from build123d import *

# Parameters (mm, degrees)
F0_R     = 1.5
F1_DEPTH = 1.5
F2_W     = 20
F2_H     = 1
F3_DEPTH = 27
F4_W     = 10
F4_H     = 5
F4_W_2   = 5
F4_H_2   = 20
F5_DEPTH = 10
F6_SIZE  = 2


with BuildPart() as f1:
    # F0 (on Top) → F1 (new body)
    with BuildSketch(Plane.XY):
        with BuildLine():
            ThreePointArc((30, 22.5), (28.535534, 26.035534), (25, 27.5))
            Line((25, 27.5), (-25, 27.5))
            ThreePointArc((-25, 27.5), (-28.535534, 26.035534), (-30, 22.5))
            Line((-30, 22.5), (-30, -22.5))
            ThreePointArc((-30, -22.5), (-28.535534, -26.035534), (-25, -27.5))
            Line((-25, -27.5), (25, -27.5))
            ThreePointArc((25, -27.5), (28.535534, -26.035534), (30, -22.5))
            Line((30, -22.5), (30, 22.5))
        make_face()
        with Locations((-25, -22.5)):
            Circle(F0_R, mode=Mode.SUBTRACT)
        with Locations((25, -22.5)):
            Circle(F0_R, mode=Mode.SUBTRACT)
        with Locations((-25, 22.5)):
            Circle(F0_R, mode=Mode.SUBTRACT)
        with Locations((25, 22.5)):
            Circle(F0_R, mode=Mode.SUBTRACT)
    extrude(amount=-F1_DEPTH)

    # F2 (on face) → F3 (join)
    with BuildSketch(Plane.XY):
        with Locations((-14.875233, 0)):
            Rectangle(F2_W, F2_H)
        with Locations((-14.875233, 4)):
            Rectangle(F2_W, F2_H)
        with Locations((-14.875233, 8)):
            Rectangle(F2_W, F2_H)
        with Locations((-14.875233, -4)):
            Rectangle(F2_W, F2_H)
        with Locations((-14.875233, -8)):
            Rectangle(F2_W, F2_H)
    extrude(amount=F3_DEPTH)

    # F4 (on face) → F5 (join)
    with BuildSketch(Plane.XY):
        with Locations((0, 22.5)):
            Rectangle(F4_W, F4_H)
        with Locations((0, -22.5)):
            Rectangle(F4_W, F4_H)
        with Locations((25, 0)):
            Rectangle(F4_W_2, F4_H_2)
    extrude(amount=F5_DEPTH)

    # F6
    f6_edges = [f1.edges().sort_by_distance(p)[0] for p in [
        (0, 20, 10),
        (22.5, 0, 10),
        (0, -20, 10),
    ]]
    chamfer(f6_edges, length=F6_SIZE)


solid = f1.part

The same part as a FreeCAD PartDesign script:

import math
import FreeCAD as App
import Part
import Sketcher


def edges_at(feature, points):
    """Names of the edges that pass closest to the given points."""
    edges = feature.Shape.Edges
    near = lambda p: min(range(len(edges)), key=lambda i: edges[i].distToShape(Part.Vertex(*p))[0])
    return sorted({f"Edge{near(p) + 1}" for p in points})


def add_polygon(sketch, points):
    """Adds a closed chain of lines whose ends are joined by coincident constraints."""
    first, n = sketch.GeometryCount, len(points)
    for a, b in zip(points, points[1:] + points[:1]):
        sketch.addGeometry(Part.LineSegment(App.Vector(*a, 0), App.Vector(*b, 0)), False)
    for i in range(n):
        sketch.addConstraint(Sketcher.Constraint("Coincident", first + i, 2, first + (i + 1) % n, 1))

doc = App.newDocument("Part")
body = doc.addObject("PartDesign::Body", "Body")

sketch1 = doc.addObject("Sketcher::SketchObject", "Sketch")
body.addObject(sketch1)
sketch1.AttachmentSupport = (doc.XY_Plane, [""])
sketch1.MapMode = "FlatFace"
sketch1.addGeometry(Part.ArcOfCircle(Part.Circle(App.Vector(25, 22.5, 0), App.Vector(0, 0, 1), 5), math.radians(0), math.radians(90)), False)
sketch1.addGeometry(Part.LineSegment(App.Vector(25, 27.5, 0), App.Vector(-25, 27.5, 0)), False)
sketch1.addGeometry(Part.ArcOfCircle(Part.Circle(App.Vector(-25, 22.5, 0), App.Vector(0, 0, 1), 5), math.radians(90), math.radians(180)), False)
sketch1.addGeometry(Part.LineSegment(App.Vector(-30, 22.5, 0), App.Vector(-30, -22.5, 0)), False)
sketch1.addGeometry(Part.ArcOfCircle(Part.Circle(App.Vector(-25, -22.5, 0), App.Vector(0, 0, 1), 5), math.radians(180), math.radians(270)), False)
sketch1.addGeometry(Part.LineSegment(App.Vector(-25, -27.5, 0), App.Vector(25, -27.5, 0)), False)
sketch1.addGeometry(Part.ArcOfCircle(Part.Circle(App.Vector(25, -22.5, 0), App.Vector(0, 0, 1), 5), math.radians(-90), math.radians(0)), False)
sketch1.addGeometry(Part.LineSegment(App.Vector(30, -22.5, 0), App.Vector(30, 22.5, 0)), False)
sketch1.addGeometry(Part.Circle(App.Vector(-25, -22.5, 0), App.Vector(0, 0, 1), 1.5), False)
sketch1.addGeometry(Part.Circle(App.Vector(25, -22.5, 0), App.Vector(0, 0, 1), 1.5), False)
sketch1.addGeometry(Part.Circle(App.Vector(-25, 22.5, 0), App.Vector(0, 0, 1), 1.5), False)
sketch1.addGeometry(Part.Circle(App.Vector(25, 22.5, 0), App.Vector(0, 0, 1), 1.5), False)
sketch1.addConstraint(Sketcher.Constraint("Tangent", 0, 2, 1, 1))
sketch1.addConstraint(Sketcher.Constraint("Tangent", 1, 2, 2, 1))
sketch1.addConstraint(Sketcher.Constraint("Tangent", 2, 2, 3, 1))
sketch1.addConstraint(Sketcher.Constraint("Tangent", 3, 2, 4, 1))
sketch1.addConstraint(Sketcher.Constraint("Tangent", 4, 2, 5, 1))
sketch1.addConstraint(Sketcher.Constraint("Tangent", 5, 2, 6, 1))
sketch1.addConstraint(Sketcher.Constraint("Tangent", 6, 2, 7, 1))
sketch1.addConstraint(Sketcher.Constraint("Tangent", 7, 2, 0, 1))
sketch1.addConstraint(Sketcher.Constraint("Horizontal", 1))
sketch1.addConstraint(Sketcher.Constraint("Vertical", 3))
sketch1.addConstraint(Sketcher.Constraint("Horizontal", 5))
sketch1.addConstraint(Sketcher.Constraint("Vertical", 7))
sketch1.addConstraint(Sketcher.Constraint("Coincident", 8, 3, 4, 3))
sketch1.addConstraint(Sketcher.Constraint("Coincident", 9, 3, 6, 3))
sketch1.addConstraint(Sketcher.Constraint("Coincident", 10, 3, 2, 3))
sketch1.addConstraint(Sketcher.Constraint("Coincident", 11, 3, 0, 3))
sketch1.addConstraint(Sketcher.Constraint("Equal", 0, 2))
sketch1.addConstraint(Sketcher.Constraint("Equal", 2, 4))
sketch1.addConstraint(Sketcher.Constraint("Equal", 4, 6))
sketch1.addConstraint(Sketcher.Constraint("Equal", 8, 9))
sketch1.addConstraint(Sketcher.Constraint("Equal", 9, 10))
sketch1.addConstraint(Sketcher.Constraint("Equal", 10, 11))
sketch1.addConstraint(Sketcher.Constraint("Symmetric", 0, 3, 4, 3, -1, 1))
sketch1.addConstraint(Sketcher.Constraint("Diameter", 8, 3.0))
sketch1.addConstraint(Sketcher.Constraint("Radius", 0, 5.0))
sketch1.addConstraint(Sketcher.Constraint("DistanceX", 1, 2, 1, 1, 50.0))
sketch1.addConstraint(Sketcher.Constraint("DistanceY", 3, 2, 3, 1, 45.0))
pad1 = doc.addObject("PartDesign::Pad", "Pad")
body.addObject(pad1)
pad1.Profile = sketch1
pad1.Length = 1.5
pad1.Reversed = True

sketch2 = doc.addObject("Sketcher::SketchObject", "Sketch001")
body.addObject(sketch2)
sketch2.AttachmentSupport = (doc.XY_Plane, [""])
sketch2.MapMode = "FlatFace"
add_polygon(sketch2, [(-24.9, 0.5), (-24.9, -0.5), (-4.9, -0.5), (-4.9, 0.5)])
add_polygon(sketch2, [(-24.9, 4.5), (-24.9, 3.5), (-4.9, 3.5), (-4.9, 4.5)])
add_polygon(sketch2, [(-24.9, 8.5), (-24.9, 7.5), (-4.9, 7.5), (-4.9, 8.5)])
add_polygon(sketch2, [(-24.9, -3.5), (-24.9, -4.5), (-4.9, -4.5), (-4.9, -3.5)])
add_polygon(sketch2, [(-24.9, -7.5), (-24.9, -8.5), (-4.9, -8.5), (-4.9, -7.5)])
sketch2.addConstraint(Sketcher.Constraint("Vertical", 0))
sketch2.addConstraint(Sketcher.Constraint("Horizontal", 1))
sketch2.addConstraint(Sketcher.Constraint("Vertical", 2))
sketch2.addConstraint(Sketcher.Constraint("Horizontal", 3))
sketch2.addConstraint(Sketcher.Constraint("Vertical", 4))
sketch2.addConstraint(Sketcher.Constraint("Horizontal", 5))
sketch2.addConstraint(Sketcher.Constraint("Vertical", 6))
sketch2.addConstraint(Sketcher.Constraint("Horizontal", 7))
sketch2.addConstraint(Sketcher.Constraint("Vertical", 8))
sketch2.addConstraint(Sketcher.Constraint("Horizontal", 9))
sketch2.addConstraint(Sketcher.Constraint("Vertical", 10))
sketch2.addConstraint(Sketcher.Constraint("Horizontal", 11))
sketch2.addConstraint(Sketcher.Constraint("Vertical", 12))
sketch2.addConstraint(Sketcher.Constraint("Horizontal", 13))
sketch2.addConstraint(Sketcher.Constraint("Vertical", 14))
sketch2.addConstraint(Sketcher.Constraint("Horizontal", 15))
sketch2.addConstraint(Sketcher.Constraint("Vertical", 16))
sketch2.addConstraint(Sketcher.Constraint("Horizontal", 17))
sketch2.addConstraint(Sketcher.Constraint("Vertical", 18))
sketch2.addConstraint(Sketcher.Constraint("Horizontal", 19))
sketch2.addConstraint(Sketcher.Constraint("Symmetric", 7, 2, 12, 2, -1))
sketch2.addConstraint(Sketcher.Constraint("Symmetric", 5, 2, 14, 2, -1))
sketch2.addConstraint(Sketcher.Constraint("Symmetric", 11, 2, 16, 2, -1))
sketch2.addConstraint(Sketcher.Constraint("Symmetric", 9, 2, 18, 2, -1))
sketch2.addConstraint(Sketcher.Constraint("Vertical", 3, 2, 4, 2))
sketch2.addConstraint(Sketcher.Constraint("Vertical", 2, 2, 5, 2))
sketch2.addConstraint(Sketcher.Constraint("Vertical", 7, 2, 8, 2))
sketch2.addConstraint(Sketcher.Constraint("Vertical", 6, 2, 9, 2))
sketch2.addConstraint(Sketcher.Constraint("Equal", 2, 4))
sketch2.addConstraint(Sketcher.Constraint("Equal", 6, 8))
sketch2.addConstraint(Sketcher.Constraint("DistanceX", 1, 1, 1, 2, 20.0))
sketch2.addConstraint(Sketcher.Constraint("DistanceY", 0, 2, 0, 1, 1.0))
sketch2.addConstraint(Sketcher.Constraint("DistanceY", 3, 2, 4, 2, 3.0))
sketch2.addConstraint(Sketcher.Constraint("DistanceY", 7, 2, 8, 2, 3.0))
sketch2.addConstraint(Sketcher.Constraint("DistanceY", 12, 2, 0, 2, 4.0))
sketch2.addConstraint(Sketcher.Constraint("DistanceX", 0, 2, -1, 1, 24.875233))
pad2 = doc.addObject("PartDesign::Pad", "Pad001")
body.addObject(pad2)
pad2.Profile = sketch2
pad2.Length = 27

sketch3 = doc.addObject("Sketcher::SketchObject", "Sketch002")
body.addObject(sketch3)
sketch3.AttachmentSupport = (doc.XY_Plane, [""])
sketch3.MapMode = "FlatFace"
add_polygon(sketch3, [(-5, 25), (-5, 20), (5, 20), (5, 25)])
add_polygon(sketch3, [(-5, -20), (-5, -25), (5, -25), (5, -20)])
add_polygon(sketch3, [(22, 10), (22, -10), (28, -10), (28, 10)])
sketch3.addConstraint(Sketcher.Constraint("Vertical", 0))
sketch3.addConstraint(Sketcher.Constraint("Horizontal", 1))
sketch3.addConstraint(Sketcher.Constraint("Vertical", 2))
sketch3.addConstraint(Sketcher.Constraint("Horizontal", 3))
sketch3.addConstraint(Sketcher.Constraint("Vertical", 4))
sketch3.addConstraint(Sketcher.Constraint("Horizontal", 5))
sketch3.addConstraint(Sketcher.Constraint("Vertical", 6))
sketch3.addConstraint(Sketcher.Constraint("Horizontal", 7))
sketch3.addConstraint(Sketcher.Constraint("Vertical", 8))
sketch3.addConstraint(Sketcher.Constraint("Horizontal", 9))
sketch3.addConstraint(Sketcher.Constraint("Vertical", 10))
sketch3.addConstraint(Sketcher.Constraint("Horizontal", 11))
sketch3.addConstraint(Sketcher.Constraint("Symmetric", 2, 2, 4, 2, -1, 1))
sketch3.addConstraint(Sketcher.Constraint("Symmetric", 0, 2, 6, 2, -1, 1))
sketch3.addConstraint(Sketcher.Constraint("Vertical", 3, 2, 4, 2))
sketch3.addConstraint(Sketcher.Constraint("Equal", 11, 0))
sketch3.addConstraint(Sketcher.Constraint("DistanceX", 1, 1, 1, 2, 10.0))
sketch3.addConstraint(Sketcher.Constraint("DistanceX", 9, 1, 9, 2, 5.0))
sketch3.addConstraint(Sketcher.Constraint("DistanceY", 8, 2, 8, 1, 20.0))
sketch3.addConstraint(Sketcher.Constraint("DistanceY", -1, 1, 0, 2, 20.0))
sketch3.addConstraint(Sketcher.Constraint("DistanceY", 8, 2, -1, 1, 10.0))
sketch3.addConstraint(Sketcher.Constraint("DistanceX", -1, 1, 8, 2, 22.5))
pad3 = doc.addObject("PartDesign::Pad", "Pad002")
body.addObject(pad3)
pad3.Profile = sketch3
pad3.Length = 10
doc.recompute()

chamfer = doc.addObject("PartDesign::Chamfer", "Chamfer")
body.addObject(chamfer)
chamfer.Base = (pad3, edges_at(pad3, [(0, 20, 10), (22.5, 0, 10), (0, -20, 10)]))
chamfer.Size = 2

doc.recompute()
